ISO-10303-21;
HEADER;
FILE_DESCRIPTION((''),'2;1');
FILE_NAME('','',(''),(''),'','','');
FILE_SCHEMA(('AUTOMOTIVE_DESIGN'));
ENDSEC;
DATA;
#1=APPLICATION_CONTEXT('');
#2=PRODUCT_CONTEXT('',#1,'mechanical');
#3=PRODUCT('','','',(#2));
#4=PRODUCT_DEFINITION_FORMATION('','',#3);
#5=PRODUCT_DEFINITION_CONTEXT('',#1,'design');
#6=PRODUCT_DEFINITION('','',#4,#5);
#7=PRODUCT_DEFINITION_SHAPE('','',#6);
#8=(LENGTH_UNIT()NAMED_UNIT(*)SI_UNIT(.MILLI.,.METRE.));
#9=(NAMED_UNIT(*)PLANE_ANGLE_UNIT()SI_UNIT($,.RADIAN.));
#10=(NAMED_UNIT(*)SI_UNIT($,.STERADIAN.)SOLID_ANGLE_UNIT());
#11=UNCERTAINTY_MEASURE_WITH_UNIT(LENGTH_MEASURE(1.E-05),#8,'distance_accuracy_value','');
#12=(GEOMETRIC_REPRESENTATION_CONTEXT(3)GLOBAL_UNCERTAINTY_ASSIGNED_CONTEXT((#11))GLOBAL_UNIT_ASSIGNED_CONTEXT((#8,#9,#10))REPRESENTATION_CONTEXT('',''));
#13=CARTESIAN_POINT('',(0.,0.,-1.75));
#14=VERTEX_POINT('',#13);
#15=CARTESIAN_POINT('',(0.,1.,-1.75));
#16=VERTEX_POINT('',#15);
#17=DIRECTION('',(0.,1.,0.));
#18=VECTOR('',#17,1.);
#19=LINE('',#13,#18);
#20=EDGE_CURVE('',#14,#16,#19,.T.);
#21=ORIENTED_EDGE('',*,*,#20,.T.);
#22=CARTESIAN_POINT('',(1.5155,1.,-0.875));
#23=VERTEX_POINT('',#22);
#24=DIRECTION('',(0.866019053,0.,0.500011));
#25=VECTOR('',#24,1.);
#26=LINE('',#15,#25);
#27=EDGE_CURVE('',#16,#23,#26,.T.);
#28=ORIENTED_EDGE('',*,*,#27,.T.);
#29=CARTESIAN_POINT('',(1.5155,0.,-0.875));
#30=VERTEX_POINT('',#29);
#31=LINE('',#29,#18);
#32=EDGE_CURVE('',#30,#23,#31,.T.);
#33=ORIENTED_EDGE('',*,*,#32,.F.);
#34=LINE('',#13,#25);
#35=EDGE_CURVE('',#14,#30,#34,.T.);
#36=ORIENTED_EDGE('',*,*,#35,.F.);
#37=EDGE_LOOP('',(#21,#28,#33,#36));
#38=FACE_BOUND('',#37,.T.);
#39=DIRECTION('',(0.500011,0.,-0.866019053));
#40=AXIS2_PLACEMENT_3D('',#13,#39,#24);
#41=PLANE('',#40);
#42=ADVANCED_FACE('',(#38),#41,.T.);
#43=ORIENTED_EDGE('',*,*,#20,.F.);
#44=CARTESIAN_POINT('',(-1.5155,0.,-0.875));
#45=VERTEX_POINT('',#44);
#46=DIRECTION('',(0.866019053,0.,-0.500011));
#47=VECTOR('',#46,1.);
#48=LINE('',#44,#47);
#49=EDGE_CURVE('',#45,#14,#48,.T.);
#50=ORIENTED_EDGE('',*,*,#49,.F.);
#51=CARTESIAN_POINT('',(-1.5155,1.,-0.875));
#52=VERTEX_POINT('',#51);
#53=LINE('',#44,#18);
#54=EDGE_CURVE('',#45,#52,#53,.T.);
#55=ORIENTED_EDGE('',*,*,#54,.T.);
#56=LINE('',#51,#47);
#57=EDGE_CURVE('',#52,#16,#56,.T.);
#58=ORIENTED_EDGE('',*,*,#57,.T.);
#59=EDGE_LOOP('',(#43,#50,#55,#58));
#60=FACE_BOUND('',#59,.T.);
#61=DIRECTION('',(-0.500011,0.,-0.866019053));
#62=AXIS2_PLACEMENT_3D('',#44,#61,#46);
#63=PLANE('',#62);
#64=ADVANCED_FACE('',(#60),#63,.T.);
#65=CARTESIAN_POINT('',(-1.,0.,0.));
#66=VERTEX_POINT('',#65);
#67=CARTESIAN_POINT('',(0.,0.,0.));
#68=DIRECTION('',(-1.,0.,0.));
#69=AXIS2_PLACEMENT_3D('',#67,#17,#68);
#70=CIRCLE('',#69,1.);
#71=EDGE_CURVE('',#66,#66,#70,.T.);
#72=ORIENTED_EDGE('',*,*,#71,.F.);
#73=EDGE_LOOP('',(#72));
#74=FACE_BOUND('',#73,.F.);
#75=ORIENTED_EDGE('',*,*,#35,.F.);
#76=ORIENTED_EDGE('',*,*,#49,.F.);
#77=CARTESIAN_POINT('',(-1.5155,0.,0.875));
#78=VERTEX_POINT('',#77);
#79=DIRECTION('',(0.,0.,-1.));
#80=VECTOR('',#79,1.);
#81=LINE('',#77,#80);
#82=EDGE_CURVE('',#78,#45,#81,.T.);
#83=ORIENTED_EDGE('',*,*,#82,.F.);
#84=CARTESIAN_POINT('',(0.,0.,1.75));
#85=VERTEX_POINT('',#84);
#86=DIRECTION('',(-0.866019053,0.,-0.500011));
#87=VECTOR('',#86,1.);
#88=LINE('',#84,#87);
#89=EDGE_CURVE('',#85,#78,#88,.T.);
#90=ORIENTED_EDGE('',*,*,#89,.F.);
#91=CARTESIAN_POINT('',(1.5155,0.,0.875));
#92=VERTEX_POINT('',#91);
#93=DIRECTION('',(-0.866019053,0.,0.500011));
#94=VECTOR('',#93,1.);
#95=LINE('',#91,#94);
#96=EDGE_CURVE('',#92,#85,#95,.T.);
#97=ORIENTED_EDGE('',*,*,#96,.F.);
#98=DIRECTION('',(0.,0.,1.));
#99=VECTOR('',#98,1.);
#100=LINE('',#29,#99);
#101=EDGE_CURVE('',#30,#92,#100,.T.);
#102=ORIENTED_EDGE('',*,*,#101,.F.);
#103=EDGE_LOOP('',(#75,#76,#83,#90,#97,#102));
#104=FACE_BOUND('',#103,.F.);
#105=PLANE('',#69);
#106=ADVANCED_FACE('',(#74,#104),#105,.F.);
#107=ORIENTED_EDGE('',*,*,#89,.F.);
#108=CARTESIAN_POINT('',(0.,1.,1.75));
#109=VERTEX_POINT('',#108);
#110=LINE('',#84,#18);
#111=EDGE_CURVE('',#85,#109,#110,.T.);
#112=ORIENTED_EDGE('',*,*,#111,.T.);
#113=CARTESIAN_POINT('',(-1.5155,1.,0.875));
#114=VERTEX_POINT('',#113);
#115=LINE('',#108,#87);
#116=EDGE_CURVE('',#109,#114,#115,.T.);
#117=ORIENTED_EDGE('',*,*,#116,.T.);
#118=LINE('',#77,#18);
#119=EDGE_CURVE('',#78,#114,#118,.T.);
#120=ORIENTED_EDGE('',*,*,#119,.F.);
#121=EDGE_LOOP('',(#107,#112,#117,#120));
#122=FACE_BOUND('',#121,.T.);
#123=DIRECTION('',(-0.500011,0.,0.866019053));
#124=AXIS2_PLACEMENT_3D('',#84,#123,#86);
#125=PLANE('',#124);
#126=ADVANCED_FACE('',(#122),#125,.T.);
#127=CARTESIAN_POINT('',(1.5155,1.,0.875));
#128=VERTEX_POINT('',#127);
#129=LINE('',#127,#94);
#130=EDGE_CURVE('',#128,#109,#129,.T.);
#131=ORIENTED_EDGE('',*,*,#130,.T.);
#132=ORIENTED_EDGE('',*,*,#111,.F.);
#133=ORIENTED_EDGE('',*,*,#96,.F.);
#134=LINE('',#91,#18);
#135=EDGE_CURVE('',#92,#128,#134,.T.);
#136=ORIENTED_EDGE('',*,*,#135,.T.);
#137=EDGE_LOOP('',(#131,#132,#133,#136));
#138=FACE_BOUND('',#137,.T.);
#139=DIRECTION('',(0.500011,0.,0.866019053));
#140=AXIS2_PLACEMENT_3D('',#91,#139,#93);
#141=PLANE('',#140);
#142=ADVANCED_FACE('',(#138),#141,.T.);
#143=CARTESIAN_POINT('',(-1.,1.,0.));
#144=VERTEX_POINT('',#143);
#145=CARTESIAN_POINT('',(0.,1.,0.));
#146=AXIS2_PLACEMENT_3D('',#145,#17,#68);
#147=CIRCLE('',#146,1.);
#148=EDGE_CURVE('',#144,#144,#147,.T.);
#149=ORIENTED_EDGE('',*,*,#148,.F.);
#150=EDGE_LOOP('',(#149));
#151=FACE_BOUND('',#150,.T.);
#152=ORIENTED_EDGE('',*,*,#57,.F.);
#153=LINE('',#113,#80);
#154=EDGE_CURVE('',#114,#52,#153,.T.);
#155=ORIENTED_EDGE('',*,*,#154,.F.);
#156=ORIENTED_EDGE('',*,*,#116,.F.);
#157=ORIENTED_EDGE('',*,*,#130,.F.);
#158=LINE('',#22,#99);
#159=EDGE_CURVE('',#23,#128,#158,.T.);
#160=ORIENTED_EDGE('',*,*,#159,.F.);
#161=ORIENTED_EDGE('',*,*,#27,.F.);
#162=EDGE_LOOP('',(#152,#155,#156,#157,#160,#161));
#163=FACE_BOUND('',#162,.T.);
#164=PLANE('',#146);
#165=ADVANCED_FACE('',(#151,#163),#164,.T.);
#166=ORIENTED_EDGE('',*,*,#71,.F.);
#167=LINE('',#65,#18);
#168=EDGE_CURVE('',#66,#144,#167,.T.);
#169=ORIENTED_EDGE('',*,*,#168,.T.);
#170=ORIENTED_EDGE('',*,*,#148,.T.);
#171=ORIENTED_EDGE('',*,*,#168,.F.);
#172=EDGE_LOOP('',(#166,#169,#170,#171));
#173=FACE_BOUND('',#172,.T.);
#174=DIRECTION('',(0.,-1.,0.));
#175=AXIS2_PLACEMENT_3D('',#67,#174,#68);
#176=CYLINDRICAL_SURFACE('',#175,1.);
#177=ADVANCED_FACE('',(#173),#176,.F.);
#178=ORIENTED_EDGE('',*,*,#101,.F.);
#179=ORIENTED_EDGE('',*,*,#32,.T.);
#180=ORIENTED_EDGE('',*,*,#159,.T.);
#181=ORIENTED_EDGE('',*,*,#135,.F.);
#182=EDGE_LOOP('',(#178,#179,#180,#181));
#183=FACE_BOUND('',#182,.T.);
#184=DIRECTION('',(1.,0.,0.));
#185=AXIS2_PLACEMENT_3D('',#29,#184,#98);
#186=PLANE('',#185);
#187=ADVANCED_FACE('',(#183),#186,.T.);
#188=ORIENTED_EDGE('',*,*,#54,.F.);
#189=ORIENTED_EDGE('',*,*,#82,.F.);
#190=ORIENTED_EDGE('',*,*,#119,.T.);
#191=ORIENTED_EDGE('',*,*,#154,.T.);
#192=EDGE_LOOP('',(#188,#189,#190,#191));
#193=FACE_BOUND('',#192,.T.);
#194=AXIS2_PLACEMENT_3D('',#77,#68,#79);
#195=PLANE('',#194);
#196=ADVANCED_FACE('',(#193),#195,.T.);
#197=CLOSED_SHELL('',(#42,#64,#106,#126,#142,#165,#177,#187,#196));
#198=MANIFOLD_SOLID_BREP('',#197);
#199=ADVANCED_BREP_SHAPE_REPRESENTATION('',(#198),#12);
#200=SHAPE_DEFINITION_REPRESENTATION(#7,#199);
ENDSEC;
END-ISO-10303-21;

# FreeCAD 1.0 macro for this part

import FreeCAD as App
import Part
import Sketcher

V = App.Vector
Q = App.Units.Quantity

doc = App.newDocument("Part")
body = doc.addObject("PartDesign::Body", "Body")

sketch1 = body.newObject("Sketcher::SketchObject", "Sketch")
sketch1.AttachmentSupport = (doc.getObject("XZ_Plane"), [""])
sketch1.MapMode = "FlatFace"
sketch1.addGeometry([
    Part.LineSegment(V(1.5, -0.9, 0), V(0, -1.8, 0)),
    Part.LineSegment(V(0, -1.8, 0), V(-1.5, -0.9, 0)),
    Part.LineSegment(V(-1.5, -0.9, 0), V(-1.5, 0.9, 0)),
    Part.LineSegment(V(-1.5, 0.9, 0), V(0, 1.8, 0)),
    Part.LineSegment(V(0, 1.8, 0), V(1.5, 0.9, 0)),
    Part.LineSegment(V(1.5, 0.9, 0), V(1.5, -0.9, 0)),
    Part.Circle(V(0, 0, 0), V(0, 0, 1), 1),
], False)
sketch1.addConstraint([
    Sketcher.Constraint("Coincident", 0, 2, 1, 1),
    Sketcher.Constraint("Coincident", 1, 2, 2, 1),
    Sketcher.Constraint("Coincident", 2, 2, 3, 1),
    Sketcher.Constraint("Coincident", 3, 2, 4, 1),
    Sketcher.Constraint("Coincident", 4, 2, 5, 1),
    Sketcher.Constraint("Coincident", 5, 2, 0, 1),
    Sketcher.Constraint("Vertical", 2),
    Sketcher.Constraint("Vertical", 5),
    Sketcher.Constraint("Coincident", 6, 3, -1, 1),
    Sketcher.Constraint("Symmetric", 0, 2, 3, 2, -1, 1),
    Sketcher.Constraint("Symmetric", 1, 2, 4, 2, -1, 1),
    Sketcher.Constraint("PointOnObject", 0, 2, -2),
    Sketcher.Constraint("Parallel", 0, 3),
    Sketcher.Constraint("Horizontal", 2, 2, 4, 2),
    Sketcher.Constraint("Diameter", 6, 2.0),
    Sketcher.Constraint("DistanceY", 0, 2, 3, 2, 3.5),
    Sketcher.Constraint("Angle", 0, Q("-149.9993 deg")),
    Sketcher.Constraint("DistanceY", 2, 1, 2, 2, 1.75),
])
pad1 = body.newObject("PartDesign::Pad", "Pad")
pad1.Profile = sketch1
pad1.Length = 1
pad1.Reversed = True

doc.recompute()
